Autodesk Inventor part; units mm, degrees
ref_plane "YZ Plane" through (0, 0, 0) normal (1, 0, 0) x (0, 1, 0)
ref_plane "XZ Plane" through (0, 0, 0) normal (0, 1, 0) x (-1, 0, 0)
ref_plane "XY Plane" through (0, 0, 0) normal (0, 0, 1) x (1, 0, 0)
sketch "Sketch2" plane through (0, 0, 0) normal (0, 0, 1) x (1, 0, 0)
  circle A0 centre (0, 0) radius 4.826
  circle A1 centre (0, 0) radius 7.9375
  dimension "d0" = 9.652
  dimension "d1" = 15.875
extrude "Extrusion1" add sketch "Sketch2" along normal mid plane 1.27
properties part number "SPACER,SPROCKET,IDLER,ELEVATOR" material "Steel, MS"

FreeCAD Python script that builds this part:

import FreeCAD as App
import Part
import Sketcher
Q = App.Units.Quantity

doc = App.newDocument("Part")
body = doc.addObject("PartDesign::Body", "Body")

# Sketch on XY plane
sketch1 = body.newObject("Sketcher::SketchObject", "Sketch")
sketch1.AttachmentSupport = (doc.getObject("XY_Plane"), [""])
sketch1.MapMode = "FlatFace"
sketch1.addGeometry([
    Part.Circle(App.Vector(0, 0, 0), App.Vector(0, 0, 1), 7.9375),
    Part.Circle(App.Vector(0, 0, 0), App.Vector(0, 0, 1), 4.826),
], False)
sketch1.addConstraint([
    Sketcher.Constraint("Coincident", 0, 3, -1, 1),
    Sketcher.Constraint("Coincident", 1, 3, -1, 1),
    Sketcher.Constraint("Diameter", 1, Q("0.38 in")),
    Sketcher.Constraint("Diameter", 0, Q("0.625 in")),
])
pad1 = body.newObject("PartDesign::Pad", "Pad")
pad1.Profile = sketch1
pad1.Length = Q("0.05 in")
pad1.Midplane = True

doc.recompute()
